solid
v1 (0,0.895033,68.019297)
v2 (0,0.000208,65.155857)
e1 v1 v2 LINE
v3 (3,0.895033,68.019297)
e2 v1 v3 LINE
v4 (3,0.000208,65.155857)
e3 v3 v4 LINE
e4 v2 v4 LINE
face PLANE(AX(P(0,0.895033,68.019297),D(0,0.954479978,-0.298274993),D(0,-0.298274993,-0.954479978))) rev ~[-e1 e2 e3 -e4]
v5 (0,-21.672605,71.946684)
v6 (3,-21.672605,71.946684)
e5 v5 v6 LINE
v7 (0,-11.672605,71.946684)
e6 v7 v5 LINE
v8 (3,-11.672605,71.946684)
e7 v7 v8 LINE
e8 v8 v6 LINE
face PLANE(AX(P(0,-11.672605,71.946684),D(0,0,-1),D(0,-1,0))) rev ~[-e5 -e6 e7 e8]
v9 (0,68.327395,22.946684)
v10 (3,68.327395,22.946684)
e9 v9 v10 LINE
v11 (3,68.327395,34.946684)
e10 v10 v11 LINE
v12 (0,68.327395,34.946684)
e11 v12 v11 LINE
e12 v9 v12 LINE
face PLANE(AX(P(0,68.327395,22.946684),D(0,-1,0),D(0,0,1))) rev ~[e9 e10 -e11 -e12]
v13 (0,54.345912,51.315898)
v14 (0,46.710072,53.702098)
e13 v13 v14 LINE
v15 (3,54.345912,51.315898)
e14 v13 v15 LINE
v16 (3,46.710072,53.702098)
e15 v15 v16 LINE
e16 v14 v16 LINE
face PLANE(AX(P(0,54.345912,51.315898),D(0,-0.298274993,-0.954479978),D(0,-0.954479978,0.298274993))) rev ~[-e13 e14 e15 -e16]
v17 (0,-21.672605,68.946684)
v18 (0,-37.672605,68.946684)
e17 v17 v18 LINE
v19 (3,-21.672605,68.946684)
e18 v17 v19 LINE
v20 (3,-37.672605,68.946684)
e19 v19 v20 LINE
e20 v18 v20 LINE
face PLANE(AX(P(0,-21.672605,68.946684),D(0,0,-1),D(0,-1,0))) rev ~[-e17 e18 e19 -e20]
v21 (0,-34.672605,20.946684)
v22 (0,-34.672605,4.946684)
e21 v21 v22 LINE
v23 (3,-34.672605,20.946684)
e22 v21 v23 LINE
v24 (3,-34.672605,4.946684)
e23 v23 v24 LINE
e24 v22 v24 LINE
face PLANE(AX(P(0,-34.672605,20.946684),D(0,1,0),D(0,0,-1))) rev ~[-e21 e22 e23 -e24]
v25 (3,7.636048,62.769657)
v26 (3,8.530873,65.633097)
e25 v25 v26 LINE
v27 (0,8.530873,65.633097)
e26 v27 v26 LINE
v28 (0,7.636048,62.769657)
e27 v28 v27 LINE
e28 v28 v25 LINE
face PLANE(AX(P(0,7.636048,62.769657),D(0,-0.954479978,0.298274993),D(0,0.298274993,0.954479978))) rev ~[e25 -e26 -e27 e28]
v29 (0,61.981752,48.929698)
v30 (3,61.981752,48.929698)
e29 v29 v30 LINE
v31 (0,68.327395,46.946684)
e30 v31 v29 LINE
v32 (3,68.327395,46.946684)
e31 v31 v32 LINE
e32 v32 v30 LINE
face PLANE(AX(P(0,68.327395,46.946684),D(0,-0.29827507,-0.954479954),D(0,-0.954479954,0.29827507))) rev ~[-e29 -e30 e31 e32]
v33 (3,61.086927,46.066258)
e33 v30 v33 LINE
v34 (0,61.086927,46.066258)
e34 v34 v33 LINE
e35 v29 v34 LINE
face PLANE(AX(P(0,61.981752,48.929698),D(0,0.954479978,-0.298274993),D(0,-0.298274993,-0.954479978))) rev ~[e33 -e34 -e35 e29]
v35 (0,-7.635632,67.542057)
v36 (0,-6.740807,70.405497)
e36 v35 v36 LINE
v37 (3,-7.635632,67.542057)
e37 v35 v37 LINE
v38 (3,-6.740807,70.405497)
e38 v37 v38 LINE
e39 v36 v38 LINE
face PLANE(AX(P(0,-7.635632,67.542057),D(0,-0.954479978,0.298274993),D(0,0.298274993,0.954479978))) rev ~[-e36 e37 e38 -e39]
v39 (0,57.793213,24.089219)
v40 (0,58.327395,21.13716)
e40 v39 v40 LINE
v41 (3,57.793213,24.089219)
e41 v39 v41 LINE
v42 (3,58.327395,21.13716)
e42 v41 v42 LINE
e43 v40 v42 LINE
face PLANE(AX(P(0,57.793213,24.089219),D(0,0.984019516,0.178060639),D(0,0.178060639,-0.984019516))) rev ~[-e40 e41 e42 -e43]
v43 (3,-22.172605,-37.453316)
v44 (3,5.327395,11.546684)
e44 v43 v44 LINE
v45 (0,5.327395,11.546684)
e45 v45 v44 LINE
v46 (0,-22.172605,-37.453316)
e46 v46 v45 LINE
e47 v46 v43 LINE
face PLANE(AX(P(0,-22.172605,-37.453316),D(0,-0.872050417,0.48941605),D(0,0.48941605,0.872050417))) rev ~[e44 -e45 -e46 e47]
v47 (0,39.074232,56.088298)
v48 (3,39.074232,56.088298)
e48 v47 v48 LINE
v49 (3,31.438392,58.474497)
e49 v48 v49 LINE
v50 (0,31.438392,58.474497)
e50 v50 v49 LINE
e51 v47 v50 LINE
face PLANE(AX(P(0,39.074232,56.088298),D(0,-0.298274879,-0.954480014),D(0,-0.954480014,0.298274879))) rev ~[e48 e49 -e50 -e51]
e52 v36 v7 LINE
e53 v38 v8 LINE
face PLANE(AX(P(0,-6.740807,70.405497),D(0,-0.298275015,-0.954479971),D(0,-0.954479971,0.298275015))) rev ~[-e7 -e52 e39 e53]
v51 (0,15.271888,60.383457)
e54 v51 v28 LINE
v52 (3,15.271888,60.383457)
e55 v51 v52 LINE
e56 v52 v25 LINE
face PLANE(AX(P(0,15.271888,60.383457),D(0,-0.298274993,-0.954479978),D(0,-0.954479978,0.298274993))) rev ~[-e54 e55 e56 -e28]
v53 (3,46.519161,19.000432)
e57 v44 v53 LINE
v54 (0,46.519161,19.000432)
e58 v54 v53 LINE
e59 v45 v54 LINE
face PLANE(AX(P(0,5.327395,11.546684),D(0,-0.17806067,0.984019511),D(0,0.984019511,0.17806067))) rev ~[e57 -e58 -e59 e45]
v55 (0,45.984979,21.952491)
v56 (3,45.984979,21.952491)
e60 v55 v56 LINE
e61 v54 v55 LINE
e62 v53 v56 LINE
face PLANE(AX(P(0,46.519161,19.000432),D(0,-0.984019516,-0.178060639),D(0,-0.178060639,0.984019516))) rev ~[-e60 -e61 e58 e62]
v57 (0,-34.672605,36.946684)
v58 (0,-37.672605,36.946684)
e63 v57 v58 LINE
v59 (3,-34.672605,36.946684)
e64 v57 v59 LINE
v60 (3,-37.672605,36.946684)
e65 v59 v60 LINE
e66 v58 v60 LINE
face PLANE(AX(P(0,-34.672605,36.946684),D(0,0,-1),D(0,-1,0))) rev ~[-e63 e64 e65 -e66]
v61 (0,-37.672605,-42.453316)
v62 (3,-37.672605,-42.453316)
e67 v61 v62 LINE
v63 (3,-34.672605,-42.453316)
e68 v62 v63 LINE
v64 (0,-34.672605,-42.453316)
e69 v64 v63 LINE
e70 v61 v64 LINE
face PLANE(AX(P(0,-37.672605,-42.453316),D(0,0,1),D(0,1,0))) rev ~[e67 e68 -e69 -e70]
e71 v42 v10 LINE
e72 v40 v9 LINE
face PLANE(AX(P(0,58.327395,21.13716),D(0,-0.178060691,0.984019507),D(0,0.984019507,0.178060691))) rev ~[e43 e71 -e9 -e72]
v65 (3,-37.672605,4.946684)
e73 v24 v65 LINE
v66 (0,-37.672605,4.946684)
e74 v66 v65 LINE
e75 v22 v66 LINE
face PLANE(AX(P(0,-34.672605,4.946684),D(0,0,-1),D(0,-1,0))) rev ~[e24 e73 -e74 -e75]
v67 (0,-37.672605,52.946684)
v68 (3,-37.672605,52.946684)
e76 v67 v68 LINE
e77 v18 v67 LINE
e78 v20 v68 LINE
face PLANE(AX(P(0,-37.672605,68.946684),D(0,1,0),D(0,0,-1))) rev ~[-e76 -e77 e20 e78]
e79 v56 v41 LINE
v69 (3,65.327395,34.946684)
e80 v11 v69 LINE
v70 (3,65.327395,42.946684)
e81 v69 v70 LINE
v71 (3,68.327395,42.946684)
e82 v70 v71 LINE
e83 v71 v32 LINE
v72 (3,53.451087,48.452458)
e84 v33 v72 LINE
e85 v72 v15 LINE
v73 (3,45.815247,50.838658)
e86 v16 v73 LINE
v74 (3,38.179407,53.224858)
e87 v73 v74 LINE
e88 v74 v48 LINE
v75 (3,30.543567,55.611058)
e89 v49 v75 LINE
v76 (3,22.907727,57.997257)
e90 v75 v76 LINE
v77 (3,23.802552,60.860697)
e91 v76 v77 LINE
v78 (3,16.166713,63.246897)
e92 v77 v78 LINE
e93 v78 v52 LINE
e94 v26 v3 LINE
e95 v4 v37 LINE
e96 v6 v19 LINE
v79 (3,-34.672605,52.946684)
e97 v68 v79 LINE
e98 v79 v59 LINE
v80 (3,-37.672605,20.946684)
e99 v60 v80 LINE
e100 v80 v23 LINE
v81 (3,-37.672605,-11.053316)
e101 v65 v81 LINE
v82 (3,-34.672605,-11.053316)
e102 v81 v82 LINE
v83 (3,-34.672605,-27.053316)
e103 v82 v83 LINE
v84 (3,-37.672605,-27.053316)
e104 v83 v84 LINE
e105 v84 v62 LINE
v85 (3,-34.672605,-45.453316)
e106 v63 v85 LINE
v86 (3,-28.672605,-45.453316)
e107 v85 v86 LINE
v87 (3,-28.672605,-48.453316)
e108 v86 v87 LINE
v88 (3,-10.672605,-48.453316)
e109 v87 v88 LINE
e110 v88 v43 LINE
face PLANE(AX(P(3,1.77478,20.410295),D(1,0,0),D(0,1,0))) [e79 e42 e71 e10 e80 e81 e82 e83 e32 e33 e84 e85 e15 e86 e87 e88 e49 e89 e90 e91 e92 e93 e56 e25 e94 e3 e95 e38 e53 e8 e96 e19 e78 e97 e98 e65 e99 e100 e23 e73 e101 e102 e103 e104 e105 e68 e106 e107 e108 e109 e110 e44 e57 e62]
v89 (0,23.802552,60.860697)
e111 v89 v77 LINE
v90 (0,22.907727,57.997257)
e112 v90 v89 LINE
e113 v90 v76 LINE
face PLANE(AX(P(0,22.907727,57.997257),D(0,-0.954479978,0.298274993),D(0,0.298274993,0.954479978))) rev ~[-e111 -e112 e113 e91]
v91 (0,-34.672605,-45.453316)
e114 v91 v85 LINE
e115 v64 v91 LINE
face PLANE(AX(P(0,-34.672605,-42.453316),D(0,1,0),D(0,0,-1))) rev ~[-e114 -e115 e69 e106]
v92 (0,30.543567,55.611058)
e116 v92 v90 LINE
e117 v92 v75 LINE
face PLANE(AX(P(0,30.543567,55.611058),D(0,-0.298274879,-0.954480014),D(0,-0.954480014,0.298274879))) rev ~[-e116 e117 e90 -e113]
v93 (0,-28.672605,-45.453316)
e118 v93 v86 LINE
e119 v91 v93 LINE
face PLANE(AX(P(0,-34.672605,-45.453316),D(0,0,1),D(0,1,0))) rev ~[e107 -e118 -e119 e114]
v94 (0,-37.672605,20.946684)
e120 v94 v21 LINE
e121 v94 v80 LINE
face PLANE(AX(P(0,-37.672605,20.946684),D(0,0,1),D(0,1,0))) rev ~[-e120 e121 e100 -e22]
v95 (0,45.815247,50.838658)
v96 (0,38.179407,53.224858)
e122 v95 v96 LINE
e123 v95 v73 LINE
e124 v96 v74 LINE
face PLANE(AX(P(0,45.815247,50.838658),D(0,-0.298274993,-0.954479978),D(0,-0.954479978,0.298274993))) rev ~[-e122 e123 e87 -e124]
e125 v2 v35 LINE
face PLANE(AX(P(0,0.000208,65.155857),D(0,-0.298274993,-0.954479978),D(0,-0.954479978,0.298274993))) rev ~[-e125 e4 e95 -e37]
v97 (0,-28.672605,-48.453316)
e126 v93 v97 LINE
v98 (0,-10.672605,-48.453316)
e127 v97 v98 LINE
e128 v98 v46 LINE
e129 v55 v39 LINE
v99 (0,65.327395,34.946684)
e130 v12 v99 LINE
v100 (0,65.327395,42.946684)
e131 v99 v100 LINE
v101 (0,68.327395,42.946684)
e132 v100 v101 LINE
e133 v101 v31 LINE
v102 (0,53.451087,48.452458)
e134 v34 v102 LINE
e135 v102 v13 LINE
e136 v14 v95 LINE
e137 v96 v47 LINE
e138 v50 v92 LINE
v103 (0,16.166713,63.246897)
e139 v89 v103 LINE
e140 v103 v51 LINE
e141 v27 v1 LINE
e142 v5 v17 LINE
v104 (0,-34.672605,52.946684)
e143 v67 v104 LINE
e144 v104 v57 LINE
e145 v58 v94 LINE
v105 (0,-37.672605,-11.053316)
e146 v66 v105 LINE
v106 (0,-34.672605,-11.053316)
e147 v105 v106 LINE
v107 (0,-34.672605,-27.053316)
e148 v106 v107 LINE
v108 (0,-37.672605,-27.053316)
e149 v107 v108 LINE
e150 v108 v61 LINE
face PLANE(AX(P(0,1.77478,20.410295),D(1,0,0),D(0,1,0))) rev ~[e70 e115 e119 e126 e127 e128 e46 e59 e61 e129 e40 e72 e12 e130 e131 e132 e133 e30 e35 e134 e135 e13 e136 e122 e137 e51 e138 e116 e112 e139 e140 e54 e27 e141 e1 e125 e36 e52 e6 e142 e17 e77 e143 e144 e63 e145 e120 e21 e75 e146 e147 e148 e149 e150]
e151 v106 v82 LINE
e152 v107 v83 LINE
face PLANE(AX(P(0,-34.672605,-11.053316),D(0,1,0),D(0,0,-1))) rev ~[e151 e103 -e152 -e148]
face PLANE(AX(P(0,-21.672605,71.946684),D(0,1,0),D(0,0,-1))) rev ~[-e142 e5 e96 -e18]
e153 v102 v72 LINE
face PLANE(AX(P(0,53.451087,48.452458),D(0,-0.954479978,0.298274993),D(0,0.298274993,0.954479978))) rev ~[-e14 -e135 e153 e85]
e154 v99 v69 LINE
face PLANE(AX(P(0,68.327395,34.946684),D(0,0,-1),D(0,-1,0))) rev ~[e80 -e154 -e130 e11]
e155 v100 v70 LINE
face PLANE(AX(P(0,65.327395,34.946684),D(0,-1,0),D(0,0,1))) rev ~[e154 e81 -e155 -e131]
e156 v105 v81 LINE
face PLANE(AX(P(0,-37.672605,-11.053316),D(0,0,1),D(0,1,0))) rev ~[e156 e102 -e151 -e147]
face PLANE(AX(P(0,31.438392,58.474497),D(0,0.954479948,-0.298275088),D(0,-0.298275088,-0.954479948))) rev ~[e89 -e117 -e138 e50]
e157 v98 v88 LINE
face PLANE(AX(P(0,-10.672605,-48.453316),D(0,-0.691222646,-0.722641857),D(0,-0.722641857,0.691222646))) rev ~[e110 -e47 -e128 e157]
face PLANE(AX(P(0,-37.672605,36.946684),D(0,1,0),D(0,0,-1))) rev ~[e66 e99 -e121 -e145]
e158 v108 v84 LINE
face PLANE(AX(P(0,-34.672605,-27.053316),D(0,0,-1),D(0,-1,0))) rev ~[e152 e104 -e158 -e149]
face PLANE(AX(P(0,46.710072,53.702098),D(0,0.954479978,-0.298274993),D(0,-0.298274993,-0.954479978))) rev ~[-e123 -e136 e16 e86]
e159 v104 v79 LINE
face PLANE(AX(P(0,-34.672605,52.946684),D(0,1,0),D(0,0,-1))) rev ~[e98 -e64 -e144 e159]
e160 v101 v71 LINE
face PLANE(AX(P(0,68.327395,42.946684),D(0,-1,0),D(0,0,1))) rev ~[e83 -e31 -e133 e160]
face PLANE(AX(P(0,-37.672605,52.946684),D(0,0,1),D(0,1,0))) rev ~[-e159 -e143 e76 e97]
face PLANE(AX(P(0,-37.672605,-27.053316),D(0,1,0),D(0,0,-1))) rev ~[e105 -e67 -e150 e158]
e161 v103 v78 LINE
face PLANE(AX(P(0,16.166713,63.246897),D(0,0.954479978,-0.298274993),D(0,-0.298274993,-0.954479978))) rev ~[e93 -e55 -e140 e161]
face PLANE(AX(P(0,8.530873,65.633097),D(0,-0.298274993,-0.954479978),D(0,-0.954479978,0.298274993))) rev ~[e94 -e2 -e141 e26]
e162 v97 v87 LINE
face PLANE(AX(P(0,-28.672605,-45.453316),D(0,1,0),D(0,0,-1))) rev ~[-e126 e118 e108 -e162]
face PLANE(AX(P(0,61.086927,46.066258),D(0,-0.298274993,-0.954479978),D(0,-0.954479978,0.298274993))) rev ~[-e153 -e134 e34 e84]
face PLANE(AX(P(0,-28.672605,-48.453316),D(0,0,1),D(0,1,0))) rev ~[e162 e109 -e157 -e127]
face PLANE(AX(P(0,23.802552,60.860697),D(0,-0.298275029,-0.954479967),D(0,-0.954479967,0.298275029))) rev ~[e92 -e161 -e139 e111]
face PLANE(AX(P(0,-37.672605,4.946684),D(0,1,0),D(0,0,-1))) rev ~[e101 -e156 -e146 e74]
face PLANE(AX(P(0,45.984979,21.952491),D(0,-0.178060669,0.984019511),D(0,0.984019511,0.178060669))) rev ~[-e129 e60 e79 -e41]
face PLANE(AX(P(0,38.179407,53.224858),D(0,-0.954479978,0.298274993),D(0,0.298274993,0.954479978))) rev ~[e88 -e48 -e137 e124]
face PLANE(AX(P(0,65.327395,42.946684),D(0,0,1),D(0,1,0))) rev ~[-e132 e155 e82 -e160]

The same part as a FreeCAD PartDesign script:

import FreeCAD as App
import Part
import Sketcher

V = App.Vector


def add_polygon(sketch, points):
    """Adds a closed chain of lines whose ends are joined by coincident constraints."""
    first, n = sketch.GeometryCount, len(points)
    for a, b in zip(points, points[1:] + points[:1]):
        sketch.addGeometry(Part.LineSegment(App.Vector(*a, 0), App.Vector(*b, 0)), False)
    for i in range(n):
        sketch.addConstraint(Sketcher.Constraint("Coincident", first + i, 2, first + (i + 1) % n, 1))

doc = App.newDocument("Part")
body = doc.addObject("PartDesign::Body", "Body")

# Sketch on YZ plane
sketch1 = body.newObject("Sketcher::SketchObject", "Sketch")
sketch1.AttachmentSupport = (doc.getObject("YZ_Plane"), [""])
sketch1.MapMode = "FlatFace"
add_polygon(sketch1, [(-28.672605, -45.453316), (-28.672605, -48.453316), (-10.672605, -48.453316), (-22.172605, -37.453316), (5.327395, 11.546684), (46.519161, 19.000432), (45.984979, 21.952491), (57.793213, 24.089219), (58.327395, 21.13716), (68.327395, 22.946684), (68.327395, 34.946684), (65.327395, 34.946684), (65.327395, 42.946684), (68.327395, 42.946684), (68.327395, 46.946684), (61.981752, 48.929698), (61.086927, 46.066258), (53.451087, 48.452458), (54.345912, 51.315898), (46.710072, 53.702098), (45.815247, 50.838658), (38.179407, 53.224858), (39.074232, 56.088298), (31.438392, 58.474497), (30.543567, 55.611058), (22.907727, 57.997257), (23.802552, 60.860697), (16.166713, 63.246897), (15.271888, 60.383457), (7.636048, 62.769657), (8.530873, 65.633097), (0.895033, 68.019297), (0.000208, 65.155857), (-7.635632, 67.542057), (-6.740807, 70.405497), (-11.672605, 71.946684), (-21.672605, 71.946684), (-21.672605, 68.946684), (-37.672605, 68.946684), (-37.672605, 52.946684), (-34.672605, 52.946684), (-34.672605, 36.946684), (-37.672605, 36.946684), (-37.672605, 20.946684), (-34.672605, 20.946684), (-34.672605, 4.946684), (-37.672605, 4.946684), (-37.672605, -11.053316), (-34.672605, -11.053316), (-34.672605, -27.053316), (-37.672605, -27.053316), (-37.672605, -42.453316), (-34.672605, -42.453316), (-34.672605, -45.453316)])  # lines 0-53
sketch1.addConstraint([
    Sketcher.Constraint("Vertical", 0),
    Sketcher.Constraint("Horizontal", 1),
    Sketcher.Constraint("Vertical", 9),
    Sketcher.Constraint("Horizontal", 10),
    Sketcher.Constraint("Vertical", 11),
    Sketcher.Constraint("Horizontal", 12),
    Sketcher.Constraint("Vertical", 13),
    Sketcher.Constraint("Horizontal", 35),
    Sketcher.Constraint("Vertical", 36),
    Sketcher.Constraint("Horizontal", 37),
    Sketcher.Constraint("Vertical", 38),
    Sketcher.Constraint("Horizontal", 39),
    Sketcher.Constraint("Vertical", 40),
    Sketcher.Constraint("Horizontal", 41),
    Sketcher.Constraint("Vertical", 42),
    Sketcher.Constraint("Horizontal", 43),
    Sketcher.Constraint("Vertical", 44),
    Sketcher.Constraint("Horizontal", 45),
    Sketcher.Constraint("Vertical", 46),
    Sketcher.Constraint("Horizontal", 47),
    Sketcher.Constraint("Vertical", 48),
    Sketcher.Constraint("Horizontal", 49),
    Sketcher.Constraint("Vertical", 50),
    Sketcher.Constraint("Horizontal", 51),
    Sketcher.Constraint("Vertical", 52),
    Sketcher.Constraint("Horizontal", 53),
    Sketcher.Constraint("Perpendicular", 4, 5),
    Sketcher.Constraint("Perpendicular", 5, 6),
    Sketcher.Constraint("Perpendicular", 6, 7),
    Sketcher.Constraint("Perpendicular", 7, 8),
    Sketcher.Constraint("Perpendicular", 14, 15),
    Sketcher.Constraint("Perpendicular", 15, 16),
    Sketcher.Constraint("Perpendicular", 16, 17),
    Sketcher.Constraint("Perpendicular", 17, 18),
    Sketcher.Constraint("Perpendicular", 18, 19),
    Sketcher.Constraint("Perpendicular", 19, 20),
    Sketcher.Constraint("Perpendicular", 20, 21),
    Sketcher.Constraint("Perpendicular", 21, 22),
    Sketcher.Constraint("Perpendicular", 22, 23),
    Sketcher.Constraint("Perpendicular", 23, 24),
    Sketcher.Constraint("Perpendicular", 24, 25),
    Sketcher.Constraint("Perpendicular", 25, 26),
    Sketcher.Constraint("Perpendicular", 26, 27),
    Sketcher.Constraint("Perpendicular", 27, 28),
    Sketcher.Constraint("Perpendicular", 28, 29),
    Sketcher.Constraint("Perpendicular", 29, 30),
    Sketcher.Constraint("Perpendicular", 30, 31),
    Sketcher.Constraint("Perpendicular", 31, 32),
    Sketcher.Constraint("Perpendicular", 32, 33),
    Sketcher.Constraint("Perpendicular", 33, 34),
    Sketcher.Constraint("Vertical", 9, 2, 12, 2),
    Sketcher.Constraint("Vertical", 38, 2, 41, 2),
    Sketcher.Constraint("Vertical", 40, 2, 43, 2),
    Sketcher.Constraint("Vertical", 42, 2, 45, 2),
    Sketcher.Constraint("Vertical", 44, 2, 47, 2),
    Sketcher.Constraint("Vertical", 46, 2, 49, 2),
    Sketcher.Constraint("Vertical", 48, 2, 51, 2),
    Sketcher.Constraint("Equal", 12, 39),
    Sketcher.Constraint("Equal", 51, 0),
    Sketcher.Constraint("Equal", 0, 36),
    Sketcher.Constraint("Equal", 37, 38),
    Sketcher.Constraint("Equal", 38, 40),
    Sketcher.Constraint("Equal", 40, 42),
    Sketcher.Constraint("Equal", 42, 44),
    Sketcher.Constraint("Equal", 44, 46),
    Sketcher.Constraint("Equal", 46, 48),
    Sketcher.Constraint("Equal", 36, 52),
    Sketcher.Constraint("Equal", 5, 7),
    Sketcher.Constraint("Equal", 7, 15),
    Sketcher.Constraint("Equal", 15, 17),
    Sketcher.Constraint("Equal", 16, 18),
    Sketcher.Constraint("Equal", 17, 19),
    Sketcher.Constraint("Equal", 18, 20),
    Sketcher.Constraint("Equal", 19, 21),
    Sketcher.Constraint("Equal", 20, 22),
    Sketcher.Constraint("Equal", 21, 23),
    Sketcher.Constraint("Equal", 22, 24),
    Sketcher.Constraint("Equal", 23, 25),
    Sketcher.Constraint("Equal", 24, 26),
    Sketcher.Constraint("Equal", 25, 27),
    Sketcher.Constraint("Equal", 26, 28),
    Sketcher.Constraint("Equal", 27, 29),
    Sketcher.Constraint("Equal", 28, 30),
    Sketcher.Constraint("Equal", 29, 31),
    Sketcher.Constraint("Equal", 30, 32),
    Sketcher.Constraint("Equal", 31, 33),
    Sketcher.Constraint("DistanceX", 1, 1, 1, 2, 18.0),
    Sketcher.Constraint("DistanceX", 10, 2, 10, 1, 3.0),
    Sketcher.Constraint("DistanceX", 35, 2, 35, 1, 10.0),
    Sketcher.Constraint("DistanceX", 37, 2, 37, 1, 16.0),
    Sketcher.Constraint("DistanceX", 53, 1, 53, 2, 6.0),
    Sketcher.Constraint("DistanceY", 9, 1, 9, 2, 12.0),
    Sketcher.Constraint("DistanceY", 11, 1, 11, 2, 8.0),
    Sketcher.Constraint("DistanceY", 13, 1, 13, 2, 4.0),
    Sketcher.Constraint("Distance", 5, 3.0),
    Sketcher.Constraint("Distance", 6, 12.0),
    Sketcher.Constraint("Distance", 16, 8.0),
    Sketcher.Constraint("DistanceY", 50, 2, 50, 1, 15.4),
    Sketcher.Constraint("DistanceY", 0, 2, 2, 2, 11.0),
    Sketcher.Constraint("DistanceY", 2, 2, 3, 2, 49.0),
    Sketcher.Constraint("DistanceX", 1, 2, 3, 2, 16.0),
    Sketcher.Constraint("DistanceX", 3, 2, 7, 2, 53.0),
    Sketcher.Constraint("DistanceX", 7, 2, 8, 2, 10.0),
    Sketcher.Constraint("DistanceX", 0, 2, 2, 2, 6.5),
    Sketcher.Constraint("DistanceY", 3, 2, 8, 2, 11.4),
    Sketcher.Constraint("Distance", 34, 5.167),
    Sketcher.Constraint("DistanceY", -1, 1, 14, 2, 48.929698),
    Sketcher.Constraint("DistanceX", -1, 1, 4, 2, 46.519161),
])
pad1 = body.newObject("PartDesign::Pad", "Pad")
pad1.Profile = sketch1
pad1.Length = 3

doc.recompute()
